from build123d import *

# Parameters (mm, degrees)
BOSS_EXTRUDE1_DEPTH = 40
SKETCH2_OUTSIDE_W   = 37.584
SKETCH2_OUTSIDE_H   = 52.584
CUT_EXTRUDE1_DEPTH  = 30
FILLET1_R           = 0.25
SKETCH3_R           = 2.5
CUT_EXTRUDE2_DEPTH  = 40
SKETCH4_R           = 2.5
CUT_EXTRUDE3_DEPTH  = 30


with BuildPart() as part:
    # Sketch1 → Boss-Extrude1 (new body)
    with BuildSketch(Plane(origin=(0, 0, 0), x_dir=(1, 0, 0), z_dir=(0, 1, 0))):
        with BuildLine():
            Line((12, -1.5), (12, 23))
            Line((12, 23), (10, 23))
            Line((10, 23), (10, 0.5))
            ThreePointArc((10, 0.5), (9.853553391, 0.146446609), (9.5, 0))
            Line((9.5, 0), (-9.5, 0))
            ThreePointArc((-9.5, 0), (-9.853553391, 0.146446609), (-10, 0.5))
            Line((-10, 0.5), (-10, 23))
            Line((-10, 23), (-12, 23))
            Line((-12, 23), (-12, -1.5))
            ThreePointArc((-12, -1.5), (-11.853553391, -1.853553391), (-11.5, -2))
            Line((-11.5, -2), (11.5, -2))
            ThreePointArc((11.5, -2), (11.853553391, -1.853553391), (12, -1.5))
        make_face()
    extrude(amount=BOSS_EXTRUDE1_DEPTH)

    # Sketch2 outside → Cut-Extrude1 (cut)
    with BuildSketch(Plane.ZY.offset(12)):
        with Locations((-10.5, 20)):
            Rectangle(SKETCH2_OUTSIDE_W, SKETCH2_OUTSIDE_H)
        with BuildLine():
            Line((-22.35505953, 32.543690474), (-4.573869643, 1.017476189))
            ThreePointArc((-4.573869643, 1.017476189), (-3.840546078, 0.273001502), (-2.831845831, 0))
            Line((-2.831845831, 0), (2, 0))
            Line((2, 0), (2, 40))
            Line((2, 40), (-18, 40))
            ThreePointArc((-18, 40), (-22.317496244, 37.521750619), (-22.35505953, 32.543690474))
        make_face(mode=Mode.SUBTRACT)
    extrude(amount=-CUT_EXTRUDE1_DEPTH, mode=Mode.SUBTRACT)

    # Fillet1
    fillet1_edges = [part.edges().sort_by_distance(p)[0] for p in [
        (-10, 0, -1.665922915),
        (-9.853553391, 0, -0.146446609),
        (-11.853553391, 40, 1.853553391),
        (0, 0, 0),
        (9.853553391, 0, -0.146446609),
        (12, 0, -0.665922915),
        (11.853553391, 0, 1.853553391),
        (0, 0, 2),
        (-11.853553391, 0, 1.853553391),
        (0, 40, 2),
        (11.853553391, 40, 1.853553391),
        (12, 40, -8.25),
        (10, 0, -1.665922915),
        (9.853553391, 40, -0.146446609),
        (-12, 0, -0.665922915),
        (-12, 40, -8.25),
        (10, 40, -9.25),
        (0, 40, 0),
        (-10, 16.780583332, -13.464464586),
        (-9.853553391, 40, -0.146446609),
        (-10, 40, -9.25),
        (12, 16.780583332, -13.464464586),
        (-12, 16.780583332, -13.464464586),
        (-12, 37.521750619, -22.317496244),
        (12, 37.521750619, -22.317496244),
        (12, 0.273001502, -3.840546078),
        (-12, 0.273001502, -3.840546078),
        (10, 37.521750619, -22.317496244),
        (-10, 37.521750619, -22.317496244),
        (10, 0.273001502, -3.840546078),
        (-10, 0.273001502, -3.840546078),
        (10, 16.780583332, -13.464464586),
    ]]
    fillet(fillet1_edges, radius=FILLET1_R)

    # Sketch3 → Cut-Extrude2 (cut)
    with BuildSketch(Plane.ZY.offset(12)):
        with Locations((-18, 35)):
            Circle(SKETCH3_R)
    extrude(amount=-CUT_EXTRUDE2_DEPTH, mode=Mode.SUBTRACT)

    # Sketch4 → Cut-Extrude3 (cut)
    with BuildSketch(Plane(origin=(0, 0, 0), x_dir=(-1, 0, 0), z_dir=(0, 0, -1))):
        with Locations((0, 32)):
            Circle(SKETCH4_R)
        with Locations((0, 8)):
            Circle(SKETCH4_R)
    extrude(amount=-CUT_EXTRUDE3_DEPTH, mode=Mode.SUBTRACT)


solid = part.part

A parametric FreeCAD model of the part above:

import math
import FreeCAD as App
import Part
import Sketcher

V = App.Vector


def edges_at(feature, points):
    """Names of the edges that pass closest to the given points."""
    edges = feature.Shape.Edges
    near = lambda p: min(range(len(edges)), key=lambda i: edges[i].distToShape(Part.Vertex(*p))[0])
    return sorted({f"Edge{near(p) + 1}" for p in points})

doc = App.newDocument("Part")
body = doc.addObject("PartDesign::Body", "Body")

# Sketch on XZ plane
sketch1 = body.newObject("Sketcher::SketchObject", "Sketch")
sketch1.AttachmentSupport = (doc.getObject("XZ_Plane"), [""])
sketch1.MapMode = "FlatFace"
sketch1.addGeometry([
    Part.LineSegment(V(12, 1.5, 0), V(12, -23, 0)),  # 0
    Part.LineSegment(V(12, -23, 0), V(10, -23, 0)),  # 1
    Part.LineSegment(V(10, -23, 0), V(10, -0.5, 0)),  # 2
    Part.ArcOfCircle(Part.Circle(V(9.5, -0.5, 0), V(0, 0, 1), 0.5), math.radians(0), math.radians(90)),  # 3
    Part.LineSegment(V(9.5, 0, 0), V(-9.5, 0, 0)),  # 4
    Part.ArcOfCircle(Part.Circle(V(-9.5, -0.5, 0), V(0, 0, 1), 0.5), math.radians(90), math.radians(180)),  # 5
    Part.LineSegment(V(-10, -0.5, 0), V(-10, -23, 0)),  # 6
    Part.LineSegment(V(-10, -23, 0), V(-12, -23, 0)),  # 7
    Part.LineSegment(V(-12, -23, 0), V(-12, 1.5, 0)),  # 8
    Part.ArcOfCircle(Part.Circle(V(-11.5, 1.5, 0), V(0, 0, 1), 0.5), math.radians(90), math.radians(180)),  # 9
    Part.LineSegment(V(-11.5, 2, 0), V(11.5, 2, 0)),  # 10
    Part.ArcOfCircle(Part.Circle(V(11.5, 1.5, 0), V(0, 0, 1), 0.5), math.radians(0), math.radians(90)),  # 11
], False)
sketch1.addConstraint([
    Sketcher.Constraint("Coincident", 0, 2, 1, 1),
    Sketcher.Constraint("Coincident", 1, 2, 2, 1),
    Sketcher.Constraint("Tangent", 2, 2, 3, 1),
    Sketcher.Constraint("Tangent", 3, 2, 4, 1),
    Sketcher.Constraint("Tangent", 4, 2, 5, 1),
    Sketcher.Constraint("Tangent", 5, 2, 6, 1),
    Sketcher.Constraint("Coincident", 6, 2, 7, 1),
    Sketcher.Constraint("Coincident", 7, 2, 8, 1),
    Sketcher.Constraint("Tangent", 8, 2, 9, 2),
    Sketcher.Constraint("Tangent", 9, 1, 10, 1),
    Sketcher.Constraint("Tangent", 10, 2, 11, 2),
    Sketcher.Constraint("Tangent", 11, 1, 0, 1),
    Sketcher.Constraint("Vertical", 0),
    Sketcher.Constraint("Horizontal", 1),
    Sketcher.Constraint("Vertical", 2),
    Sketcher.Constraint("Horizontal", 4),
    Sketcher.Constraint("Vertical", 6),
    Sketcher.Constraint("Horizontal", 7),
    Sketcher.Constraint("Vertical", 8),
    Sketcher.Constraint("Horizontal", 10),
    Sketcher.Constraint("Equal", 3, 5),
    Sketcher.Constraint("Equal", 5, 9),
    Sketcher.Constraint("Equal", 9, 11),
    Sketcher.Constraint("Symmetric", 3, 2, 4, 2, -1, 1),
    Sketcher.Constraint("Symmetric", 0, 2, 7, 2, -2),
    Sketcher.Constraint("Radius", 3, 0.5),
    Sketcher.Constraint("DistanceX", 1, 2, 1, 1, 2.0),
    Sketcher.Constraint("DistanceX", 4, 2, 4, 1, 19.0),
    Sketcher.Constraint("DistanceY", 0, 2, 0, 1, 24.5),
    Sketcher.Constraint("DistanceY", 2, 1, 2, 2, 22.5),
])
pad1 = body.newObject("PartDesign::Pad", "Pad")
pad1.Profile = sketch1
pad1.Length = 40
pad1.Reversed = True

# Sketch on YZ plane
sketch2 = body.newObject("Sketcher::SketchObject", "Sketch001")
sketch2.AttachmentSupport = (doc.getObject("YZ_Plane"), [""])
sketch2.MapMode = "FlatFace"
sketch2.AttachmentOffset = App.Placement(V(0, 0, -12), App.Rotation())
sketch2.addGeometry([
    Part.LineSegment(V(46.292, -29.292, 0), V(-6.292, -29.292, 0)),  # 0
    Part.LineSegment(V(-6.292, -29.292, 0), V(-6.292, 8.292, 0)),  # 1
    Part.LineSegment(V(-6.292, 8.292, 0), V(46.292, 8.292, 0)),  # 2
    Part.LineSegment(V(46.292, 8.292, 0), V(46.292, -29.292, 0)),  # 3
    Part.LineSegment(V(1.017476, -4.57387, 0), V(32.54369, -22.35506, 0)),  # 4
    Part.ArcOfCircle(Part.Circle(V(35, -18, 0), V(0, 0, 1), 5), math.radians(-119.423557), math.radians(0)),  # 5
    Part.LineSegment(V(40, -18, 0), V(40, 2, 0)),  # 6
    Part.LineSegment(V(40, 2, 0), V(0, 2, 0)),  # 7
    Part.LineSegment(V(0, 2, 0), V(0, -2.831846, 0)),  # 8
    Part.ArcOfCircle(Part.Circle(V(2, -2.831846, 0), V(0, 0, 1), 2), math.radians(180), math.radians(240.576443)),  # 9
], False)
sketch2.addConstraint([
    Sketcher.Constraint("Coincident", 0, 2, 1, 1),
    Sketcher.Constraint("Coincident", 1, 2, 2, 1),
    Sketcher.Constraint("Coincident", 2, 2, 3, 1),
    Sketcher.Constraint("Coincident", 3, 2, 0, 1),
    Sketcher.Constraint("Tangent", 4, 2, 5, 1),
    Sketcher.Constraint("Tangent", 5, 2, 6, 1),
    Sketcher.Constraint("Coincident", 6, 2, 7, 1),
    Sketcher.Constraint("Coincident", 7, 2, 8, 1),
    Sketcher.Constraint("Tangent", 8, 2, 9, 1),
    Sketcher.Constraint("Tangent", 9, 2, 4, 1),
    Sketcher.Constraint("Horizontal", 0),
    Sketcher.Constraint("Vertical", 1),
    Sketcher.Constraint("Horizontal", 2),
    Sketcher.Constraint("Vertical", 3),
    Sketcher.Constraint("Vertical", 6),
    Sketcher.Constraint("Horizontal", 7),
    Sketcher.Constraint("Vertical", 8),
    Sketcher.Constraint("PointOnObject", 7, 2, -2),
    Sketcher.Constraint("Radius", 5, 5.0),
    Sketcher.Constraint("Radius", 9, 2.0),
    Sketcher.Constraint("DistanceX", 7, 2, 7, 1, 40.0),
    Sketcher.Constraint("DistanceY", 6, 1, 6, 2, 20.0),
    Sketcher.Constraint("DistanceY", 5, 3, -1, 1, 18.0),
    Sketcher.Constraint("DistanceX", 0, 2, 0, 1, 52.584),
    Sketcher.Constraint("DistanceY", 1, 1, 1, 2, 37.584),
    Sketcher.Constraint("DistanceX", 0, 2, -1, 1, 6.292),
    Sketcher.Constraint("DistanceY", 0, 2, -1, 1, 29.292),
    Sketcher.Constraint("Distance", 4, 36.194929),
])
pocket1 = body.newObject("PartDesign::Pocket", "Pocket")
pocket1.Profile = sketch2
pocket1.Length = 30
pocket1.Reversed = True
doc.recompute()

fillet = body.newObject("PartDesign::Fillet", "Fillet")
fillet.Base = (pocket1, edges_at(pocket1, [
    (-10, 0, -1.666),
    (-9.854, 0, -0.146),
    (-11.854, 40, 1.854),
    (0, 0, 0),
    (9.854, 0, -0.146),
    (12, 0, -0.666),
    (11.854, 0, 1.854),
    (0, 0, 2),
    (-11.854, 0, 1.854),
    (0, 40, 2),
    (11.854, 40, 1.854),
    (12, 40, -8.25),
    (10, 0, -1.666),
    (9.854, 40, -0.146),
    (-12, 0, -0.666),
    (-12, 40, -8.25),
    (10, 40, -9.25),
    (0, 40, 0),
    (-10, 16.781, -13.464),
    (-9.854, 40, -0.146),
    (-10, 40, -9.25),
    (12, 16.781, -13.464),
    (-12, 16.781, -13.464),
    (-12, 37.522, -22.317),
    (12, 37.522, -22.317),
    (12, 0.273, -3.841),
    (-12, 0.273, -3.841),
    (10, 37.522, -22.317),
    (-10, 37.522, -22.317),
    (10, 0.273, -3.841),
    (-10, 0.273, -3.841),
    (10, 16.781, -13.464),
]))
fillet.Radius = 0.25

# Sketch on YZ plane
sketch3 = body.newObject("Sketcher::SketchObject", "Sketch002")
sketch3.AttachmentSupport = (doc.getObject("YZ_Plane"), [""])
sketch3.MapMode = "FlatFace"
sketch3.AttachmentOffset = App.Placement(V(0, 0, -12), App.Rotation())
sketch3.addGeometry(Part.Circle(V(35, -18, 0), V(0, 0, 1), 2.5), False)
sketch3.addConstraint([
    Sketcher.Constraint("Diameter", 0, 5.0),
    Sketcher.Constraint("DistanceX", -1, 1, 0, 3, 35.0),
    Sketcher.Constraint("DistanceY", 0, 3, -1, 1, 18.0),
])
pocket2 = body.newObject("PartDesign::Pocket", "Pocket001")
pocket2.Profile = sketch3
pocket2.Length = 40
pocket2.Reversed = True

# Sketch on XY plane
sketch4 = body.newObject("Sketcher::SketchObject", "Sketch003")
sketch4.AttachmentSupport = (doc.getObject("XY_Plane"), [""])
sketch4.MapMode = "FlatFace"
sketch4.addGeometry([
    Part.Circle(V(0, 32, 0), V(0, 0, 1), 2.5),
    Part.Circle(V(0, 8, 0), V(0, 0, 1), 2.5),
], False)
sketch4.addConstraint([
    Sketcher.Constraint("Equal", 0, 1),
    Sketcher.Constraint("PointOnObject", 0, 3, -2),
    Sketcher.Constraint("PointOnObject", 1, 3, -2),
    Sketcher.Constraint("Diameter", 0, 5.0),
    Sketcher.Constraint("DistanceY", -1, 1, 0, 3, 32.0),
    Sketcher.Constraint("DistanceY", -1, 1, 1, 3, 8.0),
])
pocket3 = body.newObject("PartDesign::Pocket", "Pocket002")
pocket3.Profile = sketch4
pocket3.Length = 30
pocket3.Reversed = True

doc.recompute()
